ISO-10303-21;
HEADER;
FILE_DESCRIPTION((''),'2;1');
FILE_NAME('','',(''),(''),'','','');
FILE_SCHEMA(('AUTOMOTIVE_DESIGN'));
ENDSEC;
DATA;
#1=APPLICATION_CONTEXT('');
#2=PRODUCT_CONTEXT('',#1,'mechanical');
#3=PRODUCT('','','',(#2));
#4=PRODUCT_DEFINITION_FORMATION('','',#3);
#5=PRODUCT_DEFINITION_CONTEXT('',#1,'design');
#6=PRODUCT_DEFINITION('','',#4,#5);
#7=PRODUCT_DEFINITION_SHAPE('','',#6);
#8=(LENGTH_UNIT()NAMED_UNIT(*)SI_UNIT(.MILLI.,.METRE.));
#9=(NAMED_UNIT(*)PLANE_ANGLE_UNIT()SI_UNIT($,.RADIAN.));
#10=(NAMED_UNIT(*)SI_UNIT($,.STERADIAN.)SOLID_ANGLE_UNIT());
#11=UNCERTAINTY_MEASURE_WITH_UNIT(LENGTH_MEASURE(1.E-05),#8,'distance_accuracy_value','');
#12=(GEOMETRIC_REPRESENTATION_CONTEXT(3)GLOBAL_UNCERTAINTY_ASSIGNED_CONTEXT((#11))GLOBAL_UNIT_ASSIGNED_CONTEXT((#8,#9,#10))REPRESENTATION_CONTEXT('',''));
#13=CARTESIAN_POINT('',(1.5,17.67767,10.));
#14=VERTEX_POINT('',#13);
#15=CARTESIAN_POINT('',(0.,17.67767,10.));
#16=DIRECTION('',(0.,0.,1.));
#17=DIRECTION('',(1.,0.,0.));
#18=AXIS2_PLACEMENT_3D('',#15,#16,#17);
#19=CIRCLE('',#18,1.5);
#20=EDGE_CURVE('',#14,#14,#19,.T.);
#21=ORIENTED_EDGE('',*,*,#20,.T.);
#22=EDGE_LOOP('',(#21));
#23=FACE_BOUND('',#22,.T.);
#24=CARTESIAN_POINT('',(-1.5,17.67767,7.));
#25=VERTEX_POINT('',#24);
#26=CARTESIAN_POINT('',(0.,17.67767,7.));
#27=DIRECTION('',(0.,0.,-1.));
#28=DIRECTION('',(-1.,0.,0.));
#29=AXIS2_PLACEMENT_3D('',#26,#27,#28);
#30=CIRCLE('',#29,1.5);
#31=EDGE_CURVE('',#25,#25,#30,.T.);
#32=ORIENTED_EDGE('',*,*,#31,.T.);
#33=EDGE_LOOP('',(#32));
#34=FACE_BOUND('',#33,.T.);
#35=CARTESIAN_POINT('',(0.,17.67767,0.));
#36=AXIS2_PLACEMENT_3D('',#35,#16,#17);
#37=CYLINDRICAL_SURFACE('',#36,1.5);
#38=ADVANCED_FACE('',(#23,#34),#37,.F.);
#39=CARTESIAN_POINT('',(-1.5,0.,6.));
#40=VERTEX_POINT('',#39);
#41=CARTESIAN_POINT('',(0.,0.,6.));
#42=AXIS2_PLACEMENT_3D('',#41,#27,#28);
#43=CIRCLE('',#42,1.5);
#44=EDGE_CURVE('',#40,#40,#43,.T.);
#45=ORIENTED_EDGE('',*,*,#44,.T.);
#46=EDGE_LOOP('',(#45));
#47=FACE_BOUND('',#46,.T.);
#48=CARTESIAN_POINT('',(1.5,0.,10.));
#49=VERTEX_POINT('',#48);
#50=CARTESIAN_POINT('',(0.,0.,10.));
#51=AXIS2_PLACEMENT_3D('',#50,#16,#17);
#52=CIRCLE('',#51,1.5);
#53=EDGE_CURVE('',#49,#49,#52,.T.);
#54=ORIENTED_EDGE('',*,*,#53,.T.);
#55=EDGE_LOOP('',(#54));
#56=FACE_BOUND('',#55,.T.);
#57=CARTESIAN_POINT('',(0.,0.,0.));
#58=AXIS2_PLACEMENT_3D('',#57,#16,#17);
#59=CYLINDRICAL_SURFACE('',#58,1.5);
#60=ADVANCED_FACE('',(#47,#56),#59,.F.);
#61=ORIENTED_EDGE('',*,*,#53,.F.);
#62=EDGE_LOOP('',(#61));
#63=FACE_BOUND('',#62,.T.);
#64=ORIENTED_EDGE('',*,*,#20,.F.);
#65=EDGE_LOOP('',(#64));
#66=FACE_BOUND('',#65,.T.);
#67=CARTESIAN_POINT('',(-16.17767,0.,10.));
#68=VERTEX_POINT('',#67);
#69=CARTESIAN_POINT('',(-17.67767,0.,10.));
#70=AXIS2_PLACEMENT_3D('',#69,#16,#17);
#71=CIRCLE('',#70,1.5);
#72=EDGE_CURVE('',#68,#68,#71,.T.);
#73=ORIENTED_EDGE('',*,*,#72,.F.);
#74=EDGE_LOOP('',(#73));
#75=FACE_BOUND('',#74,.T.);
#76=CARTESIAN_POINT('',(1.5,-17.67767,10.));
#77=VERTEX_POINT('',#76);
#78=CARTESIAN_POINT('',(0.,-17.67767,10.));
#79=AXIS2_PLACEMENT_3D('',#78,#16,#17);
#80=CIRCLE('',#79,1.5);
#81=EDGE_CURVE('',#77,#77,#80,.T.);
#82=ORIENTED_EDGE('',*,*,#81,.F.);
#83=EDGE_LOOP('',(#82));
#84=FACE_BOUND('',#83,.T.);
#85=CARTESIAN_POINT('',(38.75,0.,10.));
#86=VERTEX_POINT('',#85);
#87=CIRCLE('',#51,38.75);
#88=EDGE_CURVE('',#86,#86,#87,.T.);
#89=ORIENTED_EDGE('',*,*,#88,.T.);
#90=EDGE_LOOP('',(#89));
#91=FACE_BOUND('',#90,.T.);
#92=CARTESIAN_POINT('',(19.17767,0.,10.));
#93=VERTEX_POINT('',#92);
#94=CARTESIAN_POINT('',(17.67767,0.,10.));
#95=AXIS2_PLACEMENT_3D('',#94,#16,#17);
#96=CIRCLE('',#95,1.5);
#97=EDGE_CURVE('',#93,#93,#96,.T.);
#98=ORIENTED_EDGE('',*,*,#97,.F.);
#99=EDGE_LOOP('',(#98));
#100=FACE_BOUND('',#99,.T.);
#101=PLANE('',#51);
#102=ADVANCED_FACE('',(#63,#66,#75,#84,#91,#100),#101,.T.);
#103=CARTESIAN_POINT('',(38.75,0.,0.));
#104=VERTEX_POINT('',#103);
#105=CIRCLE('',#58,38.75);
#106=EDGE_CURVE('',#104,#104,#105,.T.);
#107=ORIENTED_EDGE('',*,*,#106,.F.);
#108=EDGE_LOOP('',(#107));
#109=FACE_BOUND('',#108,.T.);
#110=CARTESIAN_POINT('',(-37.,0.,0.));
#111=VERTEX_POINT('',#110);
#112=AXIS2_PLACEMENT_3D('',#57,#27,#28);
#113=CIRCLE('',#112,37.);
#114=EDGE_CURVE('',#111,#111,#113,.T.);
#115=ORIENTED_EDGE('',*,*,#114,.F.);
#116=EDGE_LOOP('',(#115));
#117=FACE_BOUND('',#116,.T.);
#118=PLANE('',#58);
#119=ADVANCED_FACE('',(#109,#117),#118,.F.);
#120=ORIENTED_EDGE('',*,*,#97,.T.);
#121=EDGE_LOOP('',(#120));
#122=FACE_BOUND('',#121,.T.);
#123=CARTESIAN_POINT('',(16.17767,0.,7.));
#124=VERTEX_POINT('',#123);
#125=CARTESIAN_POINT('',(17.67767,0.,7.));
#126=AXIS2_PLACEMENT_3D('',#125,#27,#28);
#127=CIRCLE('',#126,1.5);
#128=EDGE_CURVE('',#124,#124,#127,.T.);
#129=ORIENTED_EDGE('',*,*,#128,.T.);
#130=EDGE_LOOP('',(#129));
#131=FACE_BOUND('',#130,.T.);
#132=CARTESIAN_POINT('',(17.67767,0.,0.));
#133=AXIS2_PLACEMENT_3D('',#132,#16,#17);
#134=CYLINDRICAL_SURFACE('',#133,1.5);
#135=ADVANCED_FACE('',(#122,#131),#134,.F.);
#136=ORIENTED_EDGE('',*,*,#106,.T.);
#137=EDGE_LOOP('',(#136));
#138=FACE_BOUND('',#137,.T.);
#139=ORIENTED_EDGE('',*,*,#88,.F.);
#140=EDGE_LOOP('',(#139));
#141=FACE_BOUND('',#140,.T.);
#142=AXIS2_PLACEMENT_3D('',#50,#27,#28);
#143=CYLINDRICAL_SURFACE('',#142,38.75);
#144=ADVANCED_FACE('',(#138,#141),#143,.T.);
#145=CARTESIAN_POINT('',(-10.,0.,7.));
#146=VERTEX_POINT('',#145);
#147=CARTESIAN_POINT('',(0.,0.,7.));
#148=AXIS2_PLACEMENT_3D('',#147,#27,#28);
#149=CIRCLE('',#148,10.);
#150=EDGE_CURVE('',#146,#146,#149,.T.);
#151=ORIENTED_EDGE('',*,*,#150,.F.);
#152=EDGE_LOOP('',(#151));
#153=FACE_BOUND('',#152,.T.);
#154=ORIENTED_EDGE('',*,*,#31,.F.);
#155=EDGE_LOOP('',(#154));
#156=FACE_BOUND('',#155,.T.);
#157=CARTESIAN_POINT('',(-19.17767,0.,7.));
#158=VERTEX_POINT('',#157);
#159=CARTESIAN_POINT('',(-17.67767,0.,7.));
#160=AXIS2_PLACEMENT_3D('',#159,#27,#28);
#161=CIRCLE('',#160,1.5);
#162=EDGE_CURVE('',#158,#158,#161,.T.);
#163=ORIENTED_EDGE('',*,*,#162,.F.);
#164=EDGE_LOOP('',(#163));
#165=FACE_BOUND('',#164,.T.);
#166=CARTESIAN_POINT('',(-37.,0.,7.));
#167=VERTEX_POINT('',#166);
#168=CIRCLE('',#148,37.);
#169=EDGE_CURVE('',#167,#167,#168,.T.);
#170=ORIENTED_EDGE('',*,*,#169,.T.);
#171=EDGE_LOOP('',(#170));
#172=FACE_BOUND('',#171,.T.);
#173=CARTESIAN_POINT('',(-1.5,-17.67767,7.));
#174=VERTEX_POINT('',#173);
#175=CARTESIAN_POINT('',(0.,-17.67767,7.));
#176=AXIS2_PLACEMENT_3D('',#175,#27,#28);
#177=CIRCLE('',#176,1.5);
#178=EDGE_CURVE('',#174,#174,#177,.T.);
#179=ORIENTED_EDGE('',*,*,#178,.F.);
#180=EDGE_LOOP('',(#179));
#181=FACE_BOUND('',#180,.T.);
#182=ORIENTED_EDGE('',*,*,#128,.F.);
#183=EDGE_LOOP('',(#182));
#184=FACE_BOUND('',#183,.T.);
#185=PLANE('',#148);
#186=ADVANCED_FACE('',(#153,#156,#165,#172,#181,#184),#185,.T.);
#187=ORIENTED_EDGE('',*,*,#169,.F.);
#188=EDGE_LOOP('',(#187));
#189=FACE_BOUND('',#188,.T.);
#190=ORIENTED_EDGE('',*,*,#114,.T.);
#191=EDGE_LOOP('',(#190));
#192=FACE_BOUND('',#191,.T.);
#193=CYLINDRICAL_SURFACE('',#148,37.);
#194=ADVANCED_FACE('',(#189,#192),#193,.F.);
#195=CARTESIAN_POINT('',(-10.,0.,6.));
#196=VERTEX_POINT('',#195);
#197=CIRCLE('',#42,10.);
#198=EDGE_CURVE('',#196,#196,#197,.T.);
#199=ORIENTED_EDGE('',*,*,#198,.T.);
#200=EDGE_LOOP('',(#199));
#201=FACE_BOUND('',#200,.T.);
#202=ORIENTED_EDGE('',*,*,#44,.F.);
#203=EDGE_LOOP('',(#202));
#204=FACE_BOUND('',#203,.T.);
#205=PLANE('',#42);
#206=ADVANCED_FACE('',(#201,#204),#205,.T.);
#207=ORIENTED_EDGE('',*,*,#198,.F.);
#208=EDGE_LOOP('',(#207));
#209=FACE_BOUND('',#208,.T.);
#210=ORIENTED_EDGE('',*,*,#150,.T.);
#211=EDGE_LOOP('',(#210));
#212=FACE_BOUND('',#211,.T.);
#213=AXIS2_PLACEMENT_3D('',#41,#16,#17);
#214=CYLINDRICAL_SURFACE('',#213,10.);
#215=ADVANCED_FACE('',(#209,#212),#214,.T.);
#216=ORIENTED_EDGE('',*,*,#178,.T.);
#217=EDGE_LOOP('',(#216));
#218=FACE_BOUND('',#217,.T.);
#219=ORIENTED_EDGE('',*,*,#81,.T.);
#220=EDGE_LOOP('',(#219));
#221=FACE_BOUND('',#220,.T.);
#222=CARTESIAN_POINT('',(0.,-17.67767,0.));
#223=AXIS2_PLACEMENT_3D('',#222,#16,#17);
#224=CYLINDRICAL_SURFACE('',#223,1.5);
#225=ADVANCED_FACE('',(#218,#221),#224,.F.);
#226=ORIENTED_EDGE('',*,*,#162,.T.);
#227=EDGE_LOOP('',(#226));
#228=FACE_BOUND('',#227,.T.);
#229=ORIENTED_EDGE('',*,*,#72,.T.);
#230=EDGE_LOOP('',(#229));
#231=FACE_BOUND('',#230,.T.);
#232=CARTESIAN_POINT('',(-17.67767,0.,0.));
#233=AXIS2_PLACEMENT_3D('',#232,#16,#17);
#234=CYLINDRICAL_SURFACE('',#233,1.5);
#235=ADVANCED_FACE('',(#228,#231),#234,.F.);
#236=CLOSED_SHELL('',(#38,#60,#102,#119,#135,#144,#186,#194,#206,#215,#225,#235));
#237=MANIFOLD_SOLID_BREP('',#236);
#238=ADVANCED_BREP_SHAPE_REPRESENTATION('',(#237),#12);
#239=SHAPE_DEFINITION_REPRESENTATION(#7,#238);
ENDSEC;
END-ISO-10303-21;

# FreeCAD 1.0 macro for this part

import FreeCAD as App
import Part
import Sketcher
from FreeCAD import Vector
Q = App.Units.Quantity

doc = App.newDocument("Part")
body = doc.addObject("PartDesign::Body", "Body")

sketch1 = body.newObject("Sketcher::SketchObject", "Sketch")
sketch1.AttachmentSupport = (doc.getObject("XY_Plane"), [""])
sketch1.MapMode = "FlatFace"
sketch1.addGeometry(Part.Circle(Vector(0, 0, 0), Vector(0, 0, 1), 39), False)
sketch1.addConstraint([
    Sketcher.Constraint("Coincident", 0, 3, -1, 1),
    Sketcher.Constraint("Diameter", 0, Q("77.5 mm")),
])
pad1 = body.newObject("PartDesign::Pad", "Pad")
pad1.Profile = sketch1
pad1.Length = 10

sketch2 = body.newObject("Sketcher::SketchObject", "Sketch001")
sketch2.AttachmentSupport = (doc.getObject("XY_Plane"), [""])
sketch2.MapMode = "FlatFace"
sketch2.addGeometry(Part.Circle(Vector(0, 0, 0), Vector(0, 0, 1), 37), False)
sketch2.addConstraint([
    Sketcher.Constraint("Coincident", 0, 3, -1, 1),
    Sketcher.Constraint("Diameter", 0, Q("74 mm")),
])
pocket1 = body.newObject("PartDesign::Pocket", "Pocket")
pocket1.Profile = sketch2
pocket1.Length = 7
pocket1.Reversed = True

sketch3 = body.newObject("Sketcher::SketchObject", "Sketch002")
sketch3.AttachmentSupport = (doc.getObject("XY_Plane"), [""])
sketch3.MapMode = "FlatFace"
sketch3.AttachmentOffset = App.Placement(Vector(0, 0, 7), App.Rotation())
sketch3.addGeometry(Part.Circle(Vector(0, 0, 0), Vector(0, 0, 1), 10), False)
sketch3.addConstraint([
    Sketcher.Constraint("Coincident", 0, 3, -1, 1),
    Sketcher.Constraint("Diameter", 0, Q("20 mm")),
])
pad2 = body.newObject("PartDesign::Pad", "Pad001")
pad2.Profile = sketch3
pad2.Length = 1
pad2.Reversed = True

sketch4 = body.newObject("Sketcher::SketchObject", "Sketch003")
sketch4.AttachmentSupport = (doc.getObject("XY_Plane"), [""])
sketch4.MapMode = "FlatFace"
sketch4.AttachmentOffset = App.Placement(Vector(0, 0, 10), App.Rotation())
sketch4.addGeometry([
    Part.Circle(Vector(0, 17.7, 0), Vector(0, 0, 1), 1.5),
    Part.Circle(Vector(17.7, 0, 0), Vector(0, 0, 1), 1.5),
    Part.Circle(Vector(0, -17.7, 0), Vector(0, 0, 1), 1.5),
    Part.Circle(Vector(-17.7, 0, 0), Vector(0, 0, 1), 1.5),
    Part.Circle(Vector(0, 0, 0), Vector(0, 0, 1), 1.5),
], False)
sketch4.addConstraint([
    Sketcher.Constraint("Coincident", 4, 3, -1, 1),
    Sketcher.Constraint("Equal", 0, 1),
    Sketcher.Constraint("Equal", 1, 2),
    Sketcher.Constraint("Equal", 2, 3),
    Sketcher.Constraint("Equal", 3, 4),
    Sketcher.Constraint("Symmetric", 0, 3, 2, 3, -1, 1),
    Sketcher.Constraint("Symmetric", 1, 3, 3, 3, -1, 1),
    Sketcher.Constraint("PointOnObject", 0, 3, -2),
    Sketcher.Constraint("PointOnObject", 1, 3, -1),
    Sketcher.Constraint("Diameter", 0, Q("3 mm")),
    Sketcher.Constraint("DistanceY", -1, 1, 0, 3, Q("17.67767 mm")),
    Sketcher.Constraint("DistanceX", -1, 1, 1, 3, Q("17.67767 mm")),
])
pocket2 = body.newObject("PartDesign::Pocket", "Pocket001")
pocket2.Profile = sketch4
pocket2.Type = "ThroughAll"

doc.recompute()
